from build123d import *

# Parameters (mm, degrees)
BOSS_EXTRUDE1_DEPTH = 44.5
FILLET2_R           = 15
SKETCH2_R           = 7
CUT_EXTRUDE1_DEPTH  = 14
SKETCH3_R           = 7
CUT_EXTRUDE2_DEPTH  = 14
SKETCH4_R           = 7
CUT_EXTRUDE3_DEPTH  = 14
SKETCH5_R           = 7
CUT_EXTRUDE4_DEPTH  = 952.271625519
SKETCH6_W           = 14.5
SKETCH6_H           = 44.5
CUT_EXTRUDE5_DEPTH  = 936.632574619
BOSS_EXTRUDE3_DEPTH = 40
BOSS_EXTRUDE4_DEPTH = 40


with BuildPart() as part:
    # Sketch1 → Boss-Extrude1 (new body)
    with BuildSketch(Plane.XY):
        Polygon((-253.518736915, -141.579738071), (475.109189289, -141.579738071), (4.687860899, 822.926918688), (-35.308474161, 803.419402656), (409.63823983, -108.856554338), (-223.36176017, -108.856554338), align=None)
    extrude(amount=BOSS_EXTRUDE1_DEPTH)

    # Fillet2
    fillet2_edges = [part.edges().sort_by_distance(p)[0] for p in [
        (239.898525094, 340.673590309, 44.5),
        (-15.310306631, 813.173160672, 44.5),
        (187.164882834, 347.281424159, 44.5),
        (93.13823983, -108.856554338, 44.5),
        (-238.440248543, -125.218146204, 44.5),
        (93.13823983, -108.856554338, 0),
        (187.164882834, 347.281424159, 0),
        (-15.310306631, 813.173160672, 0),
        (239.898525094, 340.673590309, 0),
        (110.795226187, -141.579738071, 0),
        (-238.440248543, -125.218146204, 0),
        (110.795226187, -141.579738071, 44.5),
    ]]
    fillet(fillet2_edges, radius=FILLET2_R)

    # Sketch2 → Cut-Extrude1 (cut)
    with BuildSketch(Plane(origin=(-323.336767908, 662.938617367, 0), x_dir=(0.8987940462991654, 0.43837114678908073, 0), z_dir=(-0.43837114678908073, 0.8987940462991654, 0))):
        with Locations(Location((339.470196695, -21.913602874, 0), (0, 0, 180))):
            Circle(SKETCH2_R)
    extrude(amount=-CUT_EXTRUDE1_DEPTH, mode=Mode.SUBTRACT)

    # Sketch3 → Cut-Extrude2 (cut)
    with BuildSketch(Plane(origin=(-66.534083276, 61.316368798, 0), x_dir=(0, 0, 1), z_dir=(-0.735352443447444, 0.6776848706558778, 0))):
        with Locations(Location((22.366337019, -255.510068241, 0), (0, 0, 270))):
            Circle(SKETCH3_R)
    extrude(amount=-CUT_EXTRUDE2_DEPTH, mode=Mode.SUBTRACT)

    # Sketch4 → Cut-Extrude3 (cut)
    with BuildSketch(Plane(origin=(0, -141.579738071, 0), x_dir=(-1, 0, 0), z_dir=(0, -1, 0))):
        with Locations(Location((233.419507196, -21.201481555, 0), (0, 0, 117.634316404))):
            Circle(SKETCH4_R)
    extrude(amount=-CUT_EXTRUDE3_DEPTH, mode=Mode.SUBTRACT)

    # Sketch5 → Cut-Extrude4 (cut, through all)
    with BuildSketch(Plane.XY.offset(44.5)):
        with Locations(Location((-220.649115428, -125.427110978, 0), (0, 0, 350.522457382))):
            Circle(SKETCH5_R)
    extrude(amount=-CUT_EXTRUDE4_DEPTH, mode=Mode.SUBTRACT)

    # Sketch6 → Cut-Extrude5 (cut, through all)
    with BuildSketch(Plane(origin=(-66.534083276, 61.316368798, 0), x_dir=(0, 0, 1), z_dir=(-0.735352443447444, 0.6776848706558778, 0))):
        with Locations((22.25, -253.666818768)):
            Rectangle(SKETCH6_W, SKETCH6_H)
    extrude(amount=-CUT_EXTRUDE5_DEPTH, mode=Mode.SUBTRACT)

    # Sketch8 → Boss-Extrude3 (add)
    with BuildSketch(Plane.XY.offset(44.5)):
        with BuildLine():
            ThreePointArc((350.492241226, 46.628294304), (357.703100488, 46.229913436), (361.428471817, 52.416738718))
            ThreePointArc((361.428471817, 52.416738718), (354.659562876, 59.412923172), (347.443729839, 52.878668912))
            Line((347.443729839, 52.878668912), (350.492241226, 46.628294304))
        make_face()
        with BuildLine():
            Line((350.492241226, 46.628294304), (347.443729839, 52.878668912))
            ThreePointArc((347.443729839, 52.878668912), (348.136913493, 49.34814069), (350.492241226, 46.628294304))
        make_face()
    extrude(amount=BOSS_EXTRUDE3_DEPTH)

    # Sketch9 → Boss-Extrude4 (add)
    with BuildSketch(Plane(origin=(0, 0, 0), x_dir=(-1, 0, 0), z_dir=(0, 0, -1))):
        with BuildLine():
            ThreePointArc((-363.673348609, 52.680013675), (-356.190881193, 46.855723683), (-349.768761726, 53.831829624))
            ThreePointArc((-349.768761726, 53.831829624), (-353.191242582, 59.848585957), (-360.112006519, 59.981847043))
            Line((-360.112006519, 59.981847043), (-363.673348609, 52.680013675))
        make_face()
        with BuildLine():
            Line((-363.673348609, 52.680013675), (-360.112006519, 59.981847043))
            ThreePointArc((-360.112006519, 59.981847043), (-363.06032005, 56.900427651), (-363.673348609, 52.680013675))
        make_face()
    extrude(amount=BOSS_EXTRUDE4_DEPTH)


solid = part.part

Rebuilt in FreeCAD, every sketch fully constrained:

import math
import FreeCAD as App
import Part
import Sketcher
from FreeCAD import Vector
Q = App.Units.Quantity


def edges_at(feature, points):
    """Names of the edges that pass closest to the given points."""
    edges = feature.Shape.Edges
    near = lambda p: min(range(len(edges)), key=lambda i: edges[i].distToShape(Part.Vertex(*p))[0])
    return sorted({f"Edge{near(p) + 1}" for p in points})


def add_polygon(sketch, points):
    """Adds a closed chain of lines whose ends are joined by coincident constraints."""
    first, n = sketch.GeometryCount, len(points)
    for a, b in zip(points, points[1:] + points[:1]):
        sketch.addGeometry(Part.LineSegment(App.Vector(*a, 0), App.Vector(*b, 0)), False)
    for i in range(n):
        sketch.addConstraint(Sketcher.Constraint("Coincident", first + i, 2, first + (i + 1) % n, 1))

doc = App.newDocument("Part")
body = doc.addObject("PartDesign::Body", "Body")

sketch1 = doc.addObject("Sketcher::SketchObject", "Sketch")
body.addObject(sketch1)
sketch1.AttachmentSupport = (doc.XY_Plane, [""])
sketch1.MapMode = "FlatFace"
add_polygon(sketch1, [(-253.518737, -141.579738), (475.109189, -141.579738), (4.687861, 822.926919), (-35.308474, 803.419403), (409.63824, -108.856554), (-223.36176, -108.856554)])
sketch1.addConstraint([
    Sketcher.Constraint("Horizontal", 0),
    Sketcher.Constraint("Horizontal", 4),
    Sketcher.Constraint("Perpendicular", 1, 2),
    Sketcher.Constraint("Perpendicular", 2, 3),
    Sketcher.Constraint("Equal", 2, 5),
    Sketcher.Constraint("DistanceX", 4, 2, 4, 1, Q("633 mm")),
    Sketcher.Constraint("Angle", 1, Q("116 deg")),
    Sketcher.Constraint("Distance", 3, Q("1015 mm")),
    Sketcher.Constraint("Distance", 2, Q("44.5 mm")),
    Sketcher.Constraint("DistanceX", 0, 1, 0, 2, Q("728.627926 mm")),
    Sketcher.Constraint("DistanceX", -1, 1, 0, 2, Q("475.109189 mm")),
    Sketcher.Constraint("DistanceY", 0, 2, -1, 1, Q("141.579738 mm")),
])
pad1 = doc.addObject("PartDesign::Pad", "Pad")
body.addObject(pad1)
pad1.Profile = sketch1
pad1.Length = 44.5
doc.recompute()

fillet = doc.addObject("PartDesign::Fillet", "Fillet")
body.addObject(fillet)
fillet.Base = (pad1, edges_at(pad1, [
    (239.899, 340.674, 44.5),
    (-15.31, 813.173, 44.5),
    (187.165, 347.281, 44.5),
    (93.138, -108.857, 44.5),
    (-238.44, -125.218, 44.5),
    (93.138, -108.857, 0),
    (187.165, 347.281, 0),
    (-15.31, 813.173, 0),
    (239.899, 340.674, 0),
    (110.795, -141.58, 0),
    (-238.44, -125.218, 0),
    (110.795, -141.58, 44.5),
]))
fillet.Radius = 15

sketch2 = doc.addObject("Sketcher::SketchObject", "Sketch001")
body.addObject(sketch2)
sketch2.Placement = App.Placement(Vector(-323.336768, 662.938617, 0), App.Rotation(Vector(0.898794046, 0.438371147, 0), Vector(0, 0, -1), Vector(-0.438371147, 0.898794046, 0), "ZXY"))
sketch2.addGeometry(Part.Circle(Vector(339.470197, -21.913603, 0), Vector(0, 0, 1), 7), False)
sketch2.addConstraint([
    Sketcher.Constraint("Diameter", 0, Q("14 mm")),
    Sketcher.Constraint("DistanceX", -1, 1, 0, 3, Q("339.470197 mm")),
    Sketcher.Constraint("DistanceY", 0, 3, -1, 1, Q("21.913603 mm")),
])
pocket1 = doc.addObject("PartDesign::Pocket", "Pocket")
body.addObject(pocket1)
pocket1.Profile = sketch2
pocket1.Length = 14

sketch3 = doc.addObject("Sketcher::SketchObject", "Sketch002")
body.addObject(sketch3)
sketch3.Placement = App.Placement(Vector(-66.534083, 61.316369, 0), App.Rotation(Vector(0, 0, 1), Vector(0.677684871, 0.735352443, 0), Vector(-0.735352443, 0.677684871, 0), "ZXY"))
sketch3.addGeometry(Part.Circle(Vector(22.366337, -255.510068, 0), Vector(0, 0, 1), 7), False)
sketch3.addConstraint([
    Sketcher.Constraint("Diameter", 0, Q("14 mm")),
    Sketcher.Constraint("DistanceY", 0, 3, -1, 1, Q("255.510068 mm")),
    Sketcher.Constraint("DistanceX", -1, 1, 0, 3, Q("22.366337 mm")),
])
pocket2 = doc.addObject("PartDesign::Pocket", "Pocket001")
body.addObject(pocket2)
pocket2.Profile = sketch3
pocket2.Length = 14

sketch4 = doc.addObject("Sketcher::SketchObject", "Sketch003")
body.addObject(sketch4)
sketch4.AttachmentSupport = (doc.XZ_Plane, [""])
sketch4.MapMode = "FlatFace"
sketch4.AttachmentOffset = App.Placement(Vector(0, 0, 141.579738), App.Rotation())
sketch4.addGeometry(Part.Circle(Vector(-233.419507, 21.201482, 0), Vector(0, 0, 1), 7), False)
sketch4.addConstraint([
    Sketcher.Constraint("Diameter", 0, Q("14 mm")),
    Sketcher.Constraint("DistanceY", -1, 1, 0, 3, Q("21.201482 mm")),
    Sketcher.Constraint("DistanceX", 0, 3, -1, 1, Q("233.419507 mm")),
])
pocket3 = doc.addObject("PartDesign::Pocket", "Pocket002")
body.addObject(pocket3)
pocket3.Profile = sketch4
pocket3.Length = 14

sketch5 = doc.addObject("Sketcher::SketchObject", "Sketch004")
body.addObject(sketch5)
sketch5.AttachmentSupport = (doc.XY_Plane, [""])
sketch5.MapMode = "FlatFace"
sketch5.AttachmentOffset = App.Placement(Vector(0, 0, 44.5), App.Rotation())
sketch5.addGeometry(Part.Circle(Vector(-220.649115, -125.427111, 0), Vector(0, 0, 1), 7), False)
sketch5.addConstraint([
    Sketcher.Constraint("Diameter", 0, Q("14 mm")),
    Sketcher.Constraint("DistanceY", 0, 3, -1, 1, Q("125.427111 mm")),
    Sketcher.Constraint("DistanceX", 0, 3, -1, 1, Q("220.649115 mm")),
])
pocket4 = doc.addObject("PartDesign::Pocket", "Pocket003")
body.addObject(pocket4)
pocket4.Profile = sketch5
pocket4.Type = "ThroughAll"

sketch6 = doc.addObject("Sketcher::SketchObject", "Sketch005")
body.addObject(sketch6)
sketch6.Placement = App.Placement(Vector(-66.534083, 61.316369, 0), App.Rotation(Vector(0, 0, 1), Vector(0.677684871, 0.735352443, 0), Vector(-0.735352443, 0.677684871, 0), "ZXY"))
add_polygon(sketch6, [(15, -231.416819), (15, -275.916819), (29.5, -275.916819), (29.5, -231.416819)])
sketch6.addConstraint([
    Sketcher.Constraint("Vertical", 0),
    Sketcher.Constraint("Horizontal", 1),
    Sketcher.Constraint("Vertical", 2),
    Sketcher.Constraint("Horizontal", 3),
    Sketcher.Constraint("DistanceX", 1, 1, 1, 2, Q("14.5 mm")),
    Sketcher.Constraint("DistanceY", 0, 2, 0, 1, Q("44.5 mm")),
    Sketcher.Constraint("DistanceX", -1, 1, 0, 2, Q("15 mm")),
    Sketcher.Constraint("DistanceY", 0, 2, -1, 1, Q("275.916819 mm")),
])
pocket5 = doc.addObject("PartDesign::Pocket", "Pocket004")
body.addObject(pocket5)
pocket5.Profile = sketch6
pocket5.Type = "ThroughAll"

sketch7 = doc.addObject("Sketcher::SketchObject", "Sketch006")
body.addObject(sketch7)
sketch7.AttachmentSupport = (doc.XY_Plane, [""])
sketch7.MapMode = "FlatFace"
sketch7.AttachmentOffset = App.Placement(Vector(0, 0, 44.5), App.Rotation())
sketch7.addGeometry([
    Part.ArcOfCircle(Part.Circle(Vector(354.428472, 52.416739, 0), Vector(0, 0, 1), 7), math.radians(-124.2163), math.radians(0)),
    Part.ArcOfCircle(Part.Circle(Vector(354.428472, 52.416739, 0), Vector(0, 0, 1), 7), math.radians(0), math.radians(176.2163)),
    Part.ArcOfCircle(Part.Circle(Vector(354.428472, 52.416739, 0), Vector(0, 0, 1), 7), math.radians(176.2163), math.radians(235.7837)),
], False)
sketch7.addConstraint([
    Sketcher.Constraint("Tangent", 0, 2, 1, 1),
    Sketcher.Constraint("Tangent", 1, 2, 2, 1),
    Sketcher.Constraint("Tangent", 2, 2, 0, 1),
    Sketcher.Constraint("Horizontal", 2, 3, 0, 2),
    Sketcher.Constraint("Radius", 0, Q("7 mm")),
    Sketcher.Constraint("DistanceX", -1, 1, 0, 3, Q("354.428472 mm")),
    Sketcher.Constraint("DistanceY", -1, 1, 0, 3, Q("52.416739 mm")),
    Sketcher.Constraint("DistanceX", -1, 1, 1, 2, Q("347.44373 mm")),
    Sketcher.Constraint("DistanceX", -1, 1, 2, 2, Q("350.492241 mm")),
])
pad2 = doc.addObject("PartDesign::Pad", "Pad001")
body.addObject(pad2)
pad2.Profile = sketch7
pad2.Length = 40

sketch8 = doc.addObject("Sketcher::SketchObject", "Sketch007")
body.addObject(sketch8)
sketch8.AttachmentSupport = (doc.XY_Plane, [""])
sketch8.MapMode = "FlatFace"
sketch8.addGeometry([
    Part.ArcOfCircle(Part.Circle(Vector(356.768762, 53.83183, 0), Vector(0, 0, 1), 7), math.radians(180), math.radians(350.529189)),
    Part.ArcOfCircle(Part.Circle(Vector(356.768762, 53.83183, 0), Vector(0, 0, 1), 7), math.radians(61.470811), math.radians(180)),
    Part.ArcOfCircle(Part.Circle(Vector(356.768762, 53.83183, 0), Vector(0, 0, 1), 7), math.radians(-9.470811), math.radians(61.470811)),
], False)
sketch8.addConstraint([
    Sketcher.Constraint("Tangent", 0, 1, 1, 2),
    Sketcher.Constraint("Tangent", 1, 1, 2, 2),
    Sketcher.Constraint("Tangent", 2, 1, 0, 2),
    Sketcher.Constraint("Horizontal", 2, 3, 0, 1),
    Sketcher.Constraint("Radius", 0, Q("7 mm")),
    Sketcher.Constraint("DistanceX", -1, 1, 0, 3, Q("356.768762 mm")),
    Sketcher.Constraint("DistanceY", -1, 1, 0, 3, Q("53.83183 mm")),
    Sketcher.Constraint("DistanceX", -1, 1, 2, 1, Q("363.673349 mm")),
    Sketcher.Constraint("DistanceX", -1, 1, 1, 1, Q("360.112007 mm")),
])
pad3 = doc.addObject("PartDesign::Pad", "Pad002")
body.addObject(pad3)
pad3.Profile = sketch8
pad3.Length = 40
pad3.Reversed = True

doc.recompute()
